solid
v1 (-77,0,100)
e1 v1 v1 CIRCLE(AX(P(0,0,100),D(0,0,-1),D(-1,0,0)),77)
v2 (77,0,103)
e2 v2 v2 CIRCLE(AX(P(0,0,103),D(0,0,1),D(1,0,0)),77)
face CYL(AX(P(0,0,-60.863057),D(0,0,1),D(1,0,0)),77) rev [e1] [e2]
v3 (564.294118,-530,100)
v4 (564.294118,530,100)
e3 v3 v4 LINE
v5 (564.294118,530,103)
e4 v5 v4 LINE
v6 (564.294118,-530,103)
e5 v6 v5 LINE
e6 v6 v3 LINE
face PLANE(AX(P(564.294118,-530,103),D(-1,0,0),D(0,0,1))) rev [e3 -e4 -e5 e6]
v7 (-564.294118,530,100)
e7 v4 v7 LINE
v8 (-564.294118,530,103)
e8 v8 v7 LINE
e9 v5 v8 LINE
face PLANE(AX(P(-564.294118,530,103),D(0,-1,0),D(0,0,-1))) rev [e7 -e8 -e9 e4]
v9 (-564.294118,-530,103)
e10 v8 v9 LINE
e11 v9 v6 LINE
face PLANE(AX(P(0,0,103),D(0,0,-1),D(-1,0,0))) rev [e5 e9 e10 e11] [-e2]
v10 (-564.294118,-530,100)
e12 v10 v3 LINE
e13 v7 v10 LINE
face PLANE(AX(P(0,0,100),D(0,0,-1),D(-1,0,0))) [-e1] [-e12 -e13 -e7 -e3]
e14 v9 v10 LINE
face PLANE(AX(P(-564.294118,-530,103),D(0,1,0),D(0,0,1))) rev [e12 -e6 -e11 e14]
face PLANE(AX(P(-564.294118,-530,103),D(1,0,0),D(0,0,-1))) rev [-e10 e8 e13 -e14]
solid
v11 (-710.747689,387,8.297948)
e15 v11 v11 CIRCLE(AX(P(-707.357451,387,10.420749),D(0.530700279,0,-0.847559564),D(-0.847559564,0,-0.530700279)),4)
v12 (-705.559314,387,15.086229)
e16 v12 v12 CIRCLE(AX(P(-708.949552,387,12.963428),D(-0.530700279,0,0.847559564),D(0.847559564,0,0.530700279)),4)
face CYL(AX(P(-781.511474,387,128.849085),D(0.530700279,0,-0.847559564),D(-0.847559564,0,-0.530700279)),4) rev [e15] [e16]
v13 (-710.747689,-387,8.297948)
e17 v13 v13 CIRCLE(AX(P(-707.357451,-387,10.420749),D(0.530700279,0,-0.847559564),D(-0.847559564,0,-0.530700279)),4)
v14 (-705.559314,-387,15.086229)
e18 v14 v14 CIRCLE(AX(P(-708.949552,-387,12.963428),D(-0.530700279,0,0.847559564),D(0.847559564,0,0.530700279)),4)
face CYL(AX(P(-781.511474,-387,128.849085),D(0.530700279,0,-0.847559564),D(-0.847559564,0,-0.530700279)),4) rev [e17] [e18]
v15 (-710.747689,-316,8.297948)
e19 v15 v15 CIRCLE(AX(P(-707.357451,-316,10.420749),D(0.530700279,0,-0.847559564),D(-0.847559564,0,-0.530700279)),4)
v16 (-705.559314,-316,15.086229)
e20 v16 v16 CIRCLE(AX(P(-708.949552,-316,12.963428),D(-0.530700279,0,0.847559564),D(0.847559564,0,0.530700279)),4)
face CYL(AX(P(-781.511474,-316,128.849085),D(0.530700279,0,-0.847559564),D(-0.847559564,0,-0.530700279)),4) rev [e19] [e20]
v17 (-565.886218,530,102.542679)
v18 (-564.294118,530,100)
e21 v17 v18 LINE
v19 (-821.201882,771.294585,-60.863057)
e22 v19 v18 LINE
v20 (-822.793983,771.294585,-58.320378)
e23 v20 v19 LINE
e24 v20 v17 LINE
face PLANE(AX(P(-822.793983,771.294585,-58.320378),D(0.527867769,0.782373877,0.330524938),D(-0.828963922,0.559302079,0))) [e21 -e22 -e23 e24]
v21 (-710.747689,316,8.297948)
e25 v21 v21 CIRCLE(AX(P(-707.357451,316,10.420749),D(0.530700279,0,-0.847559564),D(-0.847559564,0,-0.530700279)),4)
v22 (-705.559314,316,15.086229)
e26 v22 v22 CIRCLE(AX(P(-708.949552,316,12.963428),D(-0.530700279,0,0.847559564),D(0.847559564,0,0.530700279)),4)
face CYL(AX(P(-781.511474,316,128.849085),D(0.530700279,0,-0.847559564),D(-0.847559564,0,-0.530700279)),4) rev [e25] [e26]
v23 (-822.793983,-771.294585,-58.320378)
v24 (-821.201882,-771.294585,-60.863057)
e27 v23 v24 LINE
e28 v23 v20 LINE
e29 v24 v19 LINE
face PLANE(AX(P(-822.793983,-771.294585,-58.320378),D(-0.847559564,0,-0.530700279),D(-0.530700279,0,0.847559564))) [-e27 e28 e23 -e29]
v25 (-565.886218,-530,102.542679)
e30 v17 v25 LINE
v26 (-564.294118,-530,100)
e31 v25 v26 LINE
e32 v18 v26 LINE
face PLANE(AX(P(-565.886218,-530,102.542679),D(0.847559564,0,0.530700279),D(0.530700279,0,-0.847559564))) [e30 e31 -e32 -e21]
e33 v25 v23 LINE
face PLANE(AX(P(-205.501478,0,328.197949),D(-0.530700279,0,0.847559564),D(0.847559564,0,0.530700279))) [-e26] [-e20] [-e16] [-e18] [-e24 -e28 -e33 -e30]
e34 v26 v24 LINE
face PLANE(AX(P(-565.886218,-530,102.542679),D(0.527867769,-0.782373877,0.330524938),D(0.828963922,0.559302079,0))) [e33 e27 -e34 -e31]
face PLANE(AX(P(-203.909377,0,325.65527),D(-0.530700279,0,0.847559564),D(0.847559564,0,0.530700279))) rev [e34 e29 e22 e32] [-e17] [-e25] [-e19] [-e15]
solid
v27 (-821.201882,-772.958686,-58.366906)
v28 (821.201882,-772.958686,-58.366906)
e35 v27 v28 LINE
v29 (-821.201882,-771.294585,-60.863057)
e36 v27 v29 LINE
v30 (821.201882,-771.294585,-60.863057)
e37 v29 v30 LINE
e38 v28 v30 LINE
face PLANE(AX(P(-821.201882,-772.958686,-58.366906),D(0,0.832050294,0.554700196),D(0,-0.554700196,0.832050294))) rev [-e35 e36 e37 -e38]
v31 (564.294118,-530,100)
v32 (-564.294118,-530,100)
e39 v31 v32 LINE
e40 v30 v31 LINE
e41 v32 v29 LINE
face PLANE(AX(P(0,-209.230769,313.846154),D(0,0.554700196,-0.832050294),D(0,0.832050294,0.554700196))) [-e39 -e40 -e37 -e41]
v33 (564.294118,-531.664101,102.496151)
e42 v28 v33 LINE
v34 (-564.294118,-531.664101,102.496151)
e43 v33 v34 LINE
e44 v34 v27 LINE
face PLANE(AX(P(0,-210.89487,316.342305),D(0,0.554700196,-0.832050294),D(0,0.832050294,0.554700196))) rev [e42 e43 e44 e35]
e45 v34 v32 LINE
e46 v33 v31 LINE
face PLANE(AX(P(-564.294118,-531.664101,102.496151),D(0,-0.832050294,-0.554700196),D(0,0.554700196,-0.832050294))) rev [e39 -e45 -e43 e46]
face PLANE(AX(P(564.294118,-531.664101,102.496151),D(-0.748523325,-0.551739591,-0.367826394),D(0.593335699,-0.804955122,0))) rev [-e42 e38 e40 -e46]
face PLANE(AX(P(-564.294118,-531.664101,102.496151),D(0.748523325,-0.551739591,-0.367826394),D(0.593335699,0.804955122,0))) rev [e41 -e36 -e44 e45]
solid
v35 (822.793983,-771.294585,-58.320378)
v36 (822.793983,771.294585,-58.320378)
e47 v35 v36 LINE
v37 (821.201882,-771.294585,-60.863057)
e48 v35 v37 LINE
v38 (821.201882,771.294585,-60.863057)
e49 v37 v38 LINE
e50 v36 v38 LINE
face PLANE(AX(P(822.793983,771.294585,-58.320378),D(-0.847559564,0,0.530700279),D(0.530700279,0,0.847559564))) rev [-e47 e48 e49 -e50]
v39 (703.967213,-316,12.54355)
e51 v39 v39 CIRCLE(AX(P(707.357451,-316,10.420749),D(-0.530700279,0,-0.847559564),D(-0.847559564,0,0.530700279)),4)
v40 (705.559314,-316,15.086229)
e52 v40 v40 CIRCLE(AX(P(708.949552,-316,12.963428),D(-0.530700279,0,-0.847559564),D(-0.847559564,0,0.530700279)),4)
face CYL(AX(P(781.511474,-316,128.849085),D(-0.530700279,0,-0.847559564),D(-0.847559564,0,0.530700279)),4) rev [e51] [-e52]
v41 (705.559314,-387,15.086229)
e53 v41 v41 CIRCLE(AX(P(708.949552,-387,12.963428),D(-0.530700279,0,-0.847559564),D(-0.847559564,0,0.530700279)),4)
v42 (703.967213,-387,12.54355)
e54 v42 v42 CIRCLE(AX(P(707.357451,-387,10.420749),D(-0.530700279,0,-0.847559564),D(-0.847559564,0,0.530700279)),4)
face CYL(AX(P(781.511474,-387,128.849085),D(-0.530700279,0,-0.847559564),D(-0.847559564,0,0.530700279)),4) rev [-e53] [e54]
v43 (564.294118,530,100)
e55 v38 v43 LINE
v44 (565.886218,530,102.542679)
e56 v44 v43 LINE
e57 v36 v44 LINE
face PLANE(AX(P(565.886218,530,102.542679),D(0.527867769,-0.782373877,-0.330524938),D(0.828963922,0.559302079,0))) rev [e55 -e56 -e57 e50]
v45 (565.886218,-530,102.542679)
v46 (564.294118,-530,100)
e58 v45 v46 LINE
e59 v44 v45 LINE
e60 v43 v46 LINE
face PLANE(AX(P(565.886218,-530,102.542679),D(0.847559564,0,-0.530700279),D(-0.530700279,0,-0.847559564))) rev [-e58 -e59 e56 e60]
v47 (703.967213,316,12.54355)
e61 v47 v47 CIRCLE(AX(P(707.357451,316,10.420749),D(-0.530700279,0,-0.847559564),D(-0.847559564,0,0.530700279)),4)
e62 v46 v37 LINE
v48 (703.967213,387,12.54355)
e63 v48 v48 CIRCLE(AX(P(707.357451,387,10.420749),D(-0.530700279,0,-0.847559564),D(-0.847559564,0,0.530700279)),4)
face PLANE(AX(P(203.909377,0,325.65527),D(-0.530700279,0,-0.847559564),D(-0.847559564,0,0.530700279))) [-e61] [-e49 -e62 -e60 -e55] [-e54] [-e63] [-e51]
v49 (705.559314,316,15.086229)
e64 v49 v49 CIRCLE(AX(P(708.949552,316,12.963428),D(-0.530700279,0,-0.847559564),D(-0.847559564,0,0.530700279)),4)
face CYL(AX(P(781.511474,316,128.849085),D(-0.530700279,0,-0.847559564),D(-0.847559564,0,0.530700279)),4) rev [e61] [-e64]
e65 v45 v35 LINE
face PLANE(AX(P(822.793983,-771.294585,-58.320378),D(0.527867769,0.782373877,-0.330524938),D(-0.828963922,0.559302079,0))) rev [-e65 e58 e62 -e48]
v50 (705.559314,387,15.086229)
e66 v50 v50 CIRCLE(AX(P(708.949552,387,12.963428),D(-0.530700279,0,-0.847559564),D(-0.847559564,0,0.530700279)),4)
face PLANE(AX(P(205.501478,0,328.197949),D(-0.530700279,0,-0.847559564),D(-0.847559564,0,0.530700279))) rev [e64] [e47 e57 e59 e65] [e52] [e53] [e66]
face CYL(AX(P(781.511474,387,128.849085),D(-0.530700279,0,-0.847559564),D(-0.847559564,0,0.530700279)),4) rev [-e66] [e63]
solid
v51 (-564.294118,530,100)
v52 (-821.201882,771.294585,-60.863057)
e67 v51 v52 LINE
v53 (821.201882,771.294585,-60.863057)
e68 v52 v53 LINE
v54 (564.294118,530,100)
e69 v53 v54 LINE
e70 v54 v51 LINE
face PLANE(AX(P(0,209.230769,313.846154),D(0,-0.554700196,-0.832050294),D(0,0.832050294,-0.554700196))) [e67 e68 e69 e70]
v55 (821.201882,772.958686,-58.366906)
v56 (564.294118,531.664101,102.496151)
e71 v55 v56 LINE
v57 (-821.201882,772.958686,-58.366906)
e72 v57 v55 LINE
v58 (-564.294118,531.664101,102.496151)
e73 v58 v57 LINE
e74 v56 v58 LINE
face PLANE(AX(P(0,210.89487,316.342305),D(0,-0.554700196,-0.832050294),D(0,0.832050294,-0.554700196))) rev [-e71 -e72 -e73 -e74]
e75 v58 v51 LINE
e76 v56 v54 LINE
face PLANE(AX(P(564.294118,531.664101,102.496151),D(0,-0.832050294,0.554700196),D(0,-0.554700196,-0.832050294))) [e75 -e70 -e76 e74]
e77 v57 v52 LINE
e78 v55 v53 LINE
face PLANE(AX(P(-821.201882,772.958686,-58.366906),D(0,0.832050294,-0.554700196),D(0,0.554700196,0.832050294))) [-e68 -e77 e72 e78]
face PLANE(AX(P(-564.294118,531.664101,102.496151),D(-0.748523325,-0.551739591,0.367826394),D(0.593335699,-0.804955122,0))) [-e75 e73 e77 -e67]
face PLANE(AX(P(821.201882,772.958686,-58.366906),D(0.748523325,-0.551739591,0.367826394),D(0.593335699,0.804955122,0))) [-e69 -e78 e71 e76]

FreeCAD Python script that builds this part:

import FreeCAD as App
import Part
import Sketcher
from FreeCAD import Vector
Q = App.Units.Quantity


def add_polygon(sketch, points):
    """Adds a closed chain of lines whose ends are joined by coincident constraints."""
    first, n = sketch.GeometryCount, len(points)
    for a, b in zip(points, points[1:] + points[:1]):
        sketch.addGeometry(Part.LineSegment(App.Vector(*a, 0), App.Vector(*b, 0)), False)
    for i in range(n):
        sketch.addConstraint(Sketcher.Constraint("Coincident", first + i, 2, first + (i + 1) % n, 1))

doc = App.newDocument("Part")
body = doc.addObject("PartDesign::Body", "Body")

sketch1 = doc.addObject("Sketcher::SketchObject", "Sketch")
body.addObject(sketch1)
sketch1.Placement = App.Placement(Vector(0, -209.230769, 313.846154), App.Rotation(Vector(1, 0, 0), Vector(0, 0.832050294, 0.554700196), Vector(0, -0.554700196, 0.832050294), "ZXY"))
add_polygon(sketch1, [(564, -386), (-564, -386), (-821, -676), (821, -676)])
sketch1.addConstraint(Sketcher.Constraint("Horizontal", 0))
sketch1.addConstraint(Sketcher.Constraint("Horizontal", 2))
sketch1.addConstraint(Sketcher.Constraint("Equal", 1, 3))
sketch1.addConstraint(Sketcher.Constraint("DistanceY", 1, 2, 0, 2, Q("290 mm")))
sketch1.addConstraint(Sketcher.Constraint("DistanceX", 0, 2, 2, 2, Q("1385.496 mm")))
sketch1.addConstraint(Sketcher.Constraint("DistanceX", 0, 2, 0, 1, Q("1128.588235 mm")))
sketch1.addConstraint(Sketcher.Constraint("DistanceX", 0, 2, -1, 1, Q("564.294118 mm")))
sketch1.addConstraint(Sketcher.Constraint("DistanceY", 0, 2, -1, 1, Q("385.516636 mm")))
pad1 = doc.addObject("PartDesign::Pad", "Pad")
body.addObject(pad1)
pad1.Profile = sketch1
pad1.Length = 3
body2 = doc.addObject("PartDesign::Body", "Body001")

sketch2 = doc.addObject("Sketcher::SketchObject", "Sketch001")
body2.addObject(sketch2)
sketch2.Placement = App.Placement(Vector(-203.909377, 0, 325.65527), App.Rotation(Vector(-0.847559564, 0, -0.530700279), Vector(0, 1.000000001, 0), Vector(0.530700279, 0, -0.847559564), "ZXY"))
add_polygon(sketch2, [(425, 530), (425, -530), (728, -771), (728, 771)])
sketch2.addConstraint(Sketcher.Constraint("Vertical", 0))
sketch2.addConstraint(Sketcher.Constraint("Vertical", 2))
sketch2.addConstraint(Sketcher.Constraint("Equal", 1, 3))
sketch2.addConstraint(Sketcher.Constraint("DistanceY", 0, 2, 0, 1, Q("1060.000001 mm")))
sketch2.addConstraint(Sketcher.Constraint("DistanceY", 0, 2, -1, 1, Q("530.000001 mm")))
sketch2.addConstraint(Sketcher.Constraint("DistanceY", 2, 1, 2, 2, Q("1542.589173 mm")))
sketch2.addConstraint(Sketcher.Constraint("DistanceX", -1, 1, 0, 2, Q("425.202848 mm")))
sketch2.addConstraint(Sketcher.Constraint("DistanceX", -1, 1, 1, 2, Q("728.31755 mm")))
pad2 = doc.addObject("PartDesign::Pad", "Pad001")
body2.addObject(pad2)
pad2.Profile = sketch2
pad2.Length = 3
pad2.Reversed = True

sketch3 = doc.addObject("Sketcher::SketchObject", "Sketch002")
body2.addObject(sketch3)
sketch3.Placement = App.Placement(Vector(-203.909377, 0, 325.65527), App.Rotation(Vector(-0.847559564, 0, -0.530700279), Vector(0, 1.000000001, 0), Vector(0.530700279, 0, -0.847559564), "ZXY"))
sketch3.addGeometry(Part.Circle(Vector(594, -387, 0), Vector(0, 0, 1), 4), False)
sketch3.addGeometry(Part.Circle(Vector(594, -316, 0), Vector(0, 0, 1), 4), False)
sketch3.addGeometry(Part.Circle(Vector(594, 316, 0), Vector(0, 0, 1), 4), False)
sketch3.addGeometry(Part.Circle(Vector(594, 387, 0), Vector(0, 0, 1), 4), False)
sketch3.addConstraint(Sketcher.Constraint("Equal", 0, 1))
sketch3.addConstraint(Sketcher.Constraint("Equal", 1, 2))
sketch3.addConstraint(Sketcher.Constraint("Equal", 2, 3))
sketch3.addConstraint(Sketcher.Constraint("Symmetric", 1, 3, 2, 3, -1))
sketch3.addConstraint(Sketcher.Constraint("Symmetric", 0, 3, 3, 3, -1))
sketch3.addConstraint(Sketcher.Constraint("Vertical", 0, 3, 1, 3))
sketch3.addConstraint(Sketcher.Constraint("Diameter", 0, Q("8 mm")))
sketch3.addConstraint(Sketcher.Constraint("DistanceY", 0, 3, -1, 1, Q("387.000001 mm")))
sketch3.addConstraint(Sketcher.Constraint("DistanceY", 1, 3, -1, 1, Q("316 mm")))
sketch3.addConstraint(Sketcher.Constraint("DistanceX", -1, 1, 0, 3, Q("593.997278 mm")))
pocket1 = doc.addObject("PartDesign::Pocket", "Pocket")
body2.addObject(pocket1)
pocket1.Profile = sketch3
pocket1.Type = "ThroughAll"
body3 = doc.addObject("PartDesign::Body", "Body002")

sketch4 = doc.addObject("Sketcher::SketchObject", "Sketch003")
body3.addObject(sketch4)
sketch4.Placement = App.Placement(Vector(203.909377, 0, 325.65527), App.Rotation(Vector(0.847559564, 0, -0.530700279), Vector(0, 1.000000001, 0), Vector(0.530700279, 0, 0.847559564), "ZXY"))
add_polygon(sketch4, [(425, 530), (425, -530), (728, -771), (728, 771)])
sketch4.addConstraint(Sketcher.Constraint("Vertical", 0))
sketch4.addConstraint(Sketcher.Constraint("Vertical", 2))
sketch4.addConstraint(Sketcher.Constraint("Equal", 1, 3))
sketch4.addConstraint(Sketcher.Constraint("DistanceY", 0, 2, 0, 1, Q("1060.000001 mm")))
sketch4.addConstraint(Sketcher.Constraint("DistanceY", 0, 2, -1, 1, Q("530.000001 mm")))
sketch4.addConstraint(Sketcher.Constraint("DistanceY", 2, 1, 2, 2, Q("1542.589173 mm")))
sketch4.addConstraint(Sketcher.Constraint("DistanceX", -1, 1, 0, 2, Q("425.202848 mm")))
sketch4.addConstraint(Sketcher.Constraint("DistanceX", -1, 1, 1, 2, Q("728.31755 mm")))
pad3 = doc.addObject("PartDesign::Pad", "Pad002")
body3.addObject(pad3)
pad3.Profile = sketch4
pad3.Length = 3

sketch5 = doc.addObject("Sketcher::SketchObject", "Sketch004")
body3.addObject(sketch5)
sketch5.Placement = App.Placement(Vector(203.909377, 0, 325.65527), App.Rotation(Vector(-0.847559564, 0, 0.530700279), Vector(0, 1.000000001, 0), Vector(-0.530700279, 0, -0.847559564), "ZXY"))
sketch5.addGeometry(Part.Circle(Vector(-594, 387, 0), Vector(0, 0, 1), 4), False)
sketch5.addGeometry(Part.Circle(Vector(-594, 316, 0), Vector(0, 0, 1), 4), False)
sketch5.addGeometry(Part.Circle(Vector(-594, -316, 0), Vector(0, 0, 1), 4), False)
sketch5.addGeometry(Part.Circle(Vector(-594, -387, 0), Vector(0, 0, 1), 4), False)
sketch5.addConstraint(Sketcher.Constraint("Equal", 0, 1))
sketch5.addConstraint(Sketcher.Constraint("Equal", 1, 2))
sketch5.addConstraint(Sketcher.Constraint("Equal", 2, 3))
sketch5.addConstraint(Sketcher.Constraint("Symmetric", 1, 3, 2, 3, -1))
sketch5.addConstraint(Sketcher.Constraint("Symmetric", 0, 3, 3, 3, -1))
sketch5.addConstraint(Sketcher.Constraint("Vertical", 0, 3, 1, 3))
sketch5.addConstraint(Sketcher.Constraint("Diameter", 0, Q("8 mm")))
sketch5.addConstraint(Sketcher.Constraint("DistanceY", -1, 1, 0, 3, Q("387.000001 mm")))
sketch5.addConstraint(Sketcher.Constraint("DistanceY", -1, 1, 1, 3, Q("316 mm")))
sketch5.addConstraint(Sketcher.Constraint("DistanceX", 0, 3, -1, 1, Q("593.997278 mm")))
pocket2 = doc.addObject("PartDesign::Pocket", "Pocket001")
body3.addObject(pocket2)
pocket2.Profile = sketch5
pocket2.Type = "ThroughAll"
body4 = doc.addObject("PartDesign::Body", "Body003")

sketch6 = doc.addObject("Sketcher::SketchObject", "Sketch005")
body4.addObject(sketch6)
sketch6.Placement = App.Placement(Vector(0, 209.230769, 313.846154), App.Rotation(Vector(-1, 0, 0), Vector(0, 0.832050294, -0.554700196), Vector(0, -0.554700196, -0.832050294), "ZXY"))
add_polygon(sketch6, [(-564, 386), (564, 386), (821, 676), (-821, 676)])
sketch6.addConstraint(Sketcher.Constraint("Horizontal", 0))
sketch6.addConstraint(Sketcher.Constraint("Horizontal", 2))
sketch6.addConstraint(Sketcher.Constraint("Equal", 1, 3))
sketch6.addConstraint(Sketcher.Constraint("DistanceY", 0, 2, 1, 2, Q("290 mm")))
sketch6.addConstraint(Sketcher.Constraint("DistanceX", 2, 2, 0, 2, Q("1385.496 mm")))
sketch6.addConstraint(Sketcher.Constraint("DistanceX", 0, 1, 0, 2, Q("1128.588235 mm")))
sketch6.addConstraint(Sketcher.Constraint("DistanceX", -1, 1, 0, 2, Q("564.294118 mm")))
sketch6.addConstraint(Sketcher.Constraint("DistanceY", -1, 1, 0, 2, Q("385.516636 mm")))
pad4 = doc.addObject("PartDesign::Pad", "Pad003")
body4.addObject(pad4)
pad4.Profile = sketch6
pad4.Length = 3
pad4.Reversed = True
body5 = doc.addObject("PartDesign::Body", "Body004")

sketch7 = doc.addObject("Sketcher::SketchObject", "Sketch006")
body5.addObject(sketch7)
sketch7.AttachmentSupport = (doc.getObject("XY_Plane004"), [""])
sketch7.MapMode = "FlatFace"
sketch7.AttachmentOffset = App.Placement(Vector(0, 0, 100), App.Rotation())
add_polygon(sketch7, [(-564, 530), (-564, -530), (564, -530), (564, 530)])
sketch7.addConstraint(Sketcher.Constraint("Vertical", 0))
sketch7.addConstraint(Sketcher.Constraint("Horizontal", 1))
sketch7.addConstraint(Sketcher.Constraint("Vertical", 2))
sketch7.addConstraint(Sketcher.Constraint("Horizontal", 3))
sketch7.addConstraint(Sketcher.Constraint("Symmetric", 0, 2, 2, 2, -1, 1))
sketch7.addConstraint(Sketcher.Constraint("DistanceY", 0, 2, 0, 1, Q("1060 mm")))
sketch7.addConstraint(Sketcher.Constraint("DistanceX", 1, 1, 1, 2, Q("1128.588235 mm")))
pad5 = doc.addObject("PartDesign::Pad", "Pad004")
body5.addObject(pad5)
pad5.Profile = sketch7
pad5.Length = 3

sketch8 = doc.addObject("Sketcher::SketchObject", "Sketch007")
body5.addObject(sketch8)
sketch8.AttachmentSupport = (doc.getObject("XY_Plane004"), [""])
sketch8.MapMode = "FlatFace"
sketch8.AttachmentOffset = App.Placement(Vector(0, 0, 103), App.Rotation())
sketch8.addGeometry(Part.Circle(Vector(0, 0, 0), Vector(0, 0, 1), 77), False)
sketch8.addConstraint(Sketcher.Constraint("Coincident", 0, 3, -1, 1))
sketch8.addConstraint(Sketcher.Constraint("Diameter", 0, Q("154 mm")))
pocket3 = doc.addObject("PartDesign::Pocket", "Pocket002")
body5.addObject(pocket3)
pocket3.Profile = sketch8
pocket3.Type = "ThroughAll"

doc.recompute()
